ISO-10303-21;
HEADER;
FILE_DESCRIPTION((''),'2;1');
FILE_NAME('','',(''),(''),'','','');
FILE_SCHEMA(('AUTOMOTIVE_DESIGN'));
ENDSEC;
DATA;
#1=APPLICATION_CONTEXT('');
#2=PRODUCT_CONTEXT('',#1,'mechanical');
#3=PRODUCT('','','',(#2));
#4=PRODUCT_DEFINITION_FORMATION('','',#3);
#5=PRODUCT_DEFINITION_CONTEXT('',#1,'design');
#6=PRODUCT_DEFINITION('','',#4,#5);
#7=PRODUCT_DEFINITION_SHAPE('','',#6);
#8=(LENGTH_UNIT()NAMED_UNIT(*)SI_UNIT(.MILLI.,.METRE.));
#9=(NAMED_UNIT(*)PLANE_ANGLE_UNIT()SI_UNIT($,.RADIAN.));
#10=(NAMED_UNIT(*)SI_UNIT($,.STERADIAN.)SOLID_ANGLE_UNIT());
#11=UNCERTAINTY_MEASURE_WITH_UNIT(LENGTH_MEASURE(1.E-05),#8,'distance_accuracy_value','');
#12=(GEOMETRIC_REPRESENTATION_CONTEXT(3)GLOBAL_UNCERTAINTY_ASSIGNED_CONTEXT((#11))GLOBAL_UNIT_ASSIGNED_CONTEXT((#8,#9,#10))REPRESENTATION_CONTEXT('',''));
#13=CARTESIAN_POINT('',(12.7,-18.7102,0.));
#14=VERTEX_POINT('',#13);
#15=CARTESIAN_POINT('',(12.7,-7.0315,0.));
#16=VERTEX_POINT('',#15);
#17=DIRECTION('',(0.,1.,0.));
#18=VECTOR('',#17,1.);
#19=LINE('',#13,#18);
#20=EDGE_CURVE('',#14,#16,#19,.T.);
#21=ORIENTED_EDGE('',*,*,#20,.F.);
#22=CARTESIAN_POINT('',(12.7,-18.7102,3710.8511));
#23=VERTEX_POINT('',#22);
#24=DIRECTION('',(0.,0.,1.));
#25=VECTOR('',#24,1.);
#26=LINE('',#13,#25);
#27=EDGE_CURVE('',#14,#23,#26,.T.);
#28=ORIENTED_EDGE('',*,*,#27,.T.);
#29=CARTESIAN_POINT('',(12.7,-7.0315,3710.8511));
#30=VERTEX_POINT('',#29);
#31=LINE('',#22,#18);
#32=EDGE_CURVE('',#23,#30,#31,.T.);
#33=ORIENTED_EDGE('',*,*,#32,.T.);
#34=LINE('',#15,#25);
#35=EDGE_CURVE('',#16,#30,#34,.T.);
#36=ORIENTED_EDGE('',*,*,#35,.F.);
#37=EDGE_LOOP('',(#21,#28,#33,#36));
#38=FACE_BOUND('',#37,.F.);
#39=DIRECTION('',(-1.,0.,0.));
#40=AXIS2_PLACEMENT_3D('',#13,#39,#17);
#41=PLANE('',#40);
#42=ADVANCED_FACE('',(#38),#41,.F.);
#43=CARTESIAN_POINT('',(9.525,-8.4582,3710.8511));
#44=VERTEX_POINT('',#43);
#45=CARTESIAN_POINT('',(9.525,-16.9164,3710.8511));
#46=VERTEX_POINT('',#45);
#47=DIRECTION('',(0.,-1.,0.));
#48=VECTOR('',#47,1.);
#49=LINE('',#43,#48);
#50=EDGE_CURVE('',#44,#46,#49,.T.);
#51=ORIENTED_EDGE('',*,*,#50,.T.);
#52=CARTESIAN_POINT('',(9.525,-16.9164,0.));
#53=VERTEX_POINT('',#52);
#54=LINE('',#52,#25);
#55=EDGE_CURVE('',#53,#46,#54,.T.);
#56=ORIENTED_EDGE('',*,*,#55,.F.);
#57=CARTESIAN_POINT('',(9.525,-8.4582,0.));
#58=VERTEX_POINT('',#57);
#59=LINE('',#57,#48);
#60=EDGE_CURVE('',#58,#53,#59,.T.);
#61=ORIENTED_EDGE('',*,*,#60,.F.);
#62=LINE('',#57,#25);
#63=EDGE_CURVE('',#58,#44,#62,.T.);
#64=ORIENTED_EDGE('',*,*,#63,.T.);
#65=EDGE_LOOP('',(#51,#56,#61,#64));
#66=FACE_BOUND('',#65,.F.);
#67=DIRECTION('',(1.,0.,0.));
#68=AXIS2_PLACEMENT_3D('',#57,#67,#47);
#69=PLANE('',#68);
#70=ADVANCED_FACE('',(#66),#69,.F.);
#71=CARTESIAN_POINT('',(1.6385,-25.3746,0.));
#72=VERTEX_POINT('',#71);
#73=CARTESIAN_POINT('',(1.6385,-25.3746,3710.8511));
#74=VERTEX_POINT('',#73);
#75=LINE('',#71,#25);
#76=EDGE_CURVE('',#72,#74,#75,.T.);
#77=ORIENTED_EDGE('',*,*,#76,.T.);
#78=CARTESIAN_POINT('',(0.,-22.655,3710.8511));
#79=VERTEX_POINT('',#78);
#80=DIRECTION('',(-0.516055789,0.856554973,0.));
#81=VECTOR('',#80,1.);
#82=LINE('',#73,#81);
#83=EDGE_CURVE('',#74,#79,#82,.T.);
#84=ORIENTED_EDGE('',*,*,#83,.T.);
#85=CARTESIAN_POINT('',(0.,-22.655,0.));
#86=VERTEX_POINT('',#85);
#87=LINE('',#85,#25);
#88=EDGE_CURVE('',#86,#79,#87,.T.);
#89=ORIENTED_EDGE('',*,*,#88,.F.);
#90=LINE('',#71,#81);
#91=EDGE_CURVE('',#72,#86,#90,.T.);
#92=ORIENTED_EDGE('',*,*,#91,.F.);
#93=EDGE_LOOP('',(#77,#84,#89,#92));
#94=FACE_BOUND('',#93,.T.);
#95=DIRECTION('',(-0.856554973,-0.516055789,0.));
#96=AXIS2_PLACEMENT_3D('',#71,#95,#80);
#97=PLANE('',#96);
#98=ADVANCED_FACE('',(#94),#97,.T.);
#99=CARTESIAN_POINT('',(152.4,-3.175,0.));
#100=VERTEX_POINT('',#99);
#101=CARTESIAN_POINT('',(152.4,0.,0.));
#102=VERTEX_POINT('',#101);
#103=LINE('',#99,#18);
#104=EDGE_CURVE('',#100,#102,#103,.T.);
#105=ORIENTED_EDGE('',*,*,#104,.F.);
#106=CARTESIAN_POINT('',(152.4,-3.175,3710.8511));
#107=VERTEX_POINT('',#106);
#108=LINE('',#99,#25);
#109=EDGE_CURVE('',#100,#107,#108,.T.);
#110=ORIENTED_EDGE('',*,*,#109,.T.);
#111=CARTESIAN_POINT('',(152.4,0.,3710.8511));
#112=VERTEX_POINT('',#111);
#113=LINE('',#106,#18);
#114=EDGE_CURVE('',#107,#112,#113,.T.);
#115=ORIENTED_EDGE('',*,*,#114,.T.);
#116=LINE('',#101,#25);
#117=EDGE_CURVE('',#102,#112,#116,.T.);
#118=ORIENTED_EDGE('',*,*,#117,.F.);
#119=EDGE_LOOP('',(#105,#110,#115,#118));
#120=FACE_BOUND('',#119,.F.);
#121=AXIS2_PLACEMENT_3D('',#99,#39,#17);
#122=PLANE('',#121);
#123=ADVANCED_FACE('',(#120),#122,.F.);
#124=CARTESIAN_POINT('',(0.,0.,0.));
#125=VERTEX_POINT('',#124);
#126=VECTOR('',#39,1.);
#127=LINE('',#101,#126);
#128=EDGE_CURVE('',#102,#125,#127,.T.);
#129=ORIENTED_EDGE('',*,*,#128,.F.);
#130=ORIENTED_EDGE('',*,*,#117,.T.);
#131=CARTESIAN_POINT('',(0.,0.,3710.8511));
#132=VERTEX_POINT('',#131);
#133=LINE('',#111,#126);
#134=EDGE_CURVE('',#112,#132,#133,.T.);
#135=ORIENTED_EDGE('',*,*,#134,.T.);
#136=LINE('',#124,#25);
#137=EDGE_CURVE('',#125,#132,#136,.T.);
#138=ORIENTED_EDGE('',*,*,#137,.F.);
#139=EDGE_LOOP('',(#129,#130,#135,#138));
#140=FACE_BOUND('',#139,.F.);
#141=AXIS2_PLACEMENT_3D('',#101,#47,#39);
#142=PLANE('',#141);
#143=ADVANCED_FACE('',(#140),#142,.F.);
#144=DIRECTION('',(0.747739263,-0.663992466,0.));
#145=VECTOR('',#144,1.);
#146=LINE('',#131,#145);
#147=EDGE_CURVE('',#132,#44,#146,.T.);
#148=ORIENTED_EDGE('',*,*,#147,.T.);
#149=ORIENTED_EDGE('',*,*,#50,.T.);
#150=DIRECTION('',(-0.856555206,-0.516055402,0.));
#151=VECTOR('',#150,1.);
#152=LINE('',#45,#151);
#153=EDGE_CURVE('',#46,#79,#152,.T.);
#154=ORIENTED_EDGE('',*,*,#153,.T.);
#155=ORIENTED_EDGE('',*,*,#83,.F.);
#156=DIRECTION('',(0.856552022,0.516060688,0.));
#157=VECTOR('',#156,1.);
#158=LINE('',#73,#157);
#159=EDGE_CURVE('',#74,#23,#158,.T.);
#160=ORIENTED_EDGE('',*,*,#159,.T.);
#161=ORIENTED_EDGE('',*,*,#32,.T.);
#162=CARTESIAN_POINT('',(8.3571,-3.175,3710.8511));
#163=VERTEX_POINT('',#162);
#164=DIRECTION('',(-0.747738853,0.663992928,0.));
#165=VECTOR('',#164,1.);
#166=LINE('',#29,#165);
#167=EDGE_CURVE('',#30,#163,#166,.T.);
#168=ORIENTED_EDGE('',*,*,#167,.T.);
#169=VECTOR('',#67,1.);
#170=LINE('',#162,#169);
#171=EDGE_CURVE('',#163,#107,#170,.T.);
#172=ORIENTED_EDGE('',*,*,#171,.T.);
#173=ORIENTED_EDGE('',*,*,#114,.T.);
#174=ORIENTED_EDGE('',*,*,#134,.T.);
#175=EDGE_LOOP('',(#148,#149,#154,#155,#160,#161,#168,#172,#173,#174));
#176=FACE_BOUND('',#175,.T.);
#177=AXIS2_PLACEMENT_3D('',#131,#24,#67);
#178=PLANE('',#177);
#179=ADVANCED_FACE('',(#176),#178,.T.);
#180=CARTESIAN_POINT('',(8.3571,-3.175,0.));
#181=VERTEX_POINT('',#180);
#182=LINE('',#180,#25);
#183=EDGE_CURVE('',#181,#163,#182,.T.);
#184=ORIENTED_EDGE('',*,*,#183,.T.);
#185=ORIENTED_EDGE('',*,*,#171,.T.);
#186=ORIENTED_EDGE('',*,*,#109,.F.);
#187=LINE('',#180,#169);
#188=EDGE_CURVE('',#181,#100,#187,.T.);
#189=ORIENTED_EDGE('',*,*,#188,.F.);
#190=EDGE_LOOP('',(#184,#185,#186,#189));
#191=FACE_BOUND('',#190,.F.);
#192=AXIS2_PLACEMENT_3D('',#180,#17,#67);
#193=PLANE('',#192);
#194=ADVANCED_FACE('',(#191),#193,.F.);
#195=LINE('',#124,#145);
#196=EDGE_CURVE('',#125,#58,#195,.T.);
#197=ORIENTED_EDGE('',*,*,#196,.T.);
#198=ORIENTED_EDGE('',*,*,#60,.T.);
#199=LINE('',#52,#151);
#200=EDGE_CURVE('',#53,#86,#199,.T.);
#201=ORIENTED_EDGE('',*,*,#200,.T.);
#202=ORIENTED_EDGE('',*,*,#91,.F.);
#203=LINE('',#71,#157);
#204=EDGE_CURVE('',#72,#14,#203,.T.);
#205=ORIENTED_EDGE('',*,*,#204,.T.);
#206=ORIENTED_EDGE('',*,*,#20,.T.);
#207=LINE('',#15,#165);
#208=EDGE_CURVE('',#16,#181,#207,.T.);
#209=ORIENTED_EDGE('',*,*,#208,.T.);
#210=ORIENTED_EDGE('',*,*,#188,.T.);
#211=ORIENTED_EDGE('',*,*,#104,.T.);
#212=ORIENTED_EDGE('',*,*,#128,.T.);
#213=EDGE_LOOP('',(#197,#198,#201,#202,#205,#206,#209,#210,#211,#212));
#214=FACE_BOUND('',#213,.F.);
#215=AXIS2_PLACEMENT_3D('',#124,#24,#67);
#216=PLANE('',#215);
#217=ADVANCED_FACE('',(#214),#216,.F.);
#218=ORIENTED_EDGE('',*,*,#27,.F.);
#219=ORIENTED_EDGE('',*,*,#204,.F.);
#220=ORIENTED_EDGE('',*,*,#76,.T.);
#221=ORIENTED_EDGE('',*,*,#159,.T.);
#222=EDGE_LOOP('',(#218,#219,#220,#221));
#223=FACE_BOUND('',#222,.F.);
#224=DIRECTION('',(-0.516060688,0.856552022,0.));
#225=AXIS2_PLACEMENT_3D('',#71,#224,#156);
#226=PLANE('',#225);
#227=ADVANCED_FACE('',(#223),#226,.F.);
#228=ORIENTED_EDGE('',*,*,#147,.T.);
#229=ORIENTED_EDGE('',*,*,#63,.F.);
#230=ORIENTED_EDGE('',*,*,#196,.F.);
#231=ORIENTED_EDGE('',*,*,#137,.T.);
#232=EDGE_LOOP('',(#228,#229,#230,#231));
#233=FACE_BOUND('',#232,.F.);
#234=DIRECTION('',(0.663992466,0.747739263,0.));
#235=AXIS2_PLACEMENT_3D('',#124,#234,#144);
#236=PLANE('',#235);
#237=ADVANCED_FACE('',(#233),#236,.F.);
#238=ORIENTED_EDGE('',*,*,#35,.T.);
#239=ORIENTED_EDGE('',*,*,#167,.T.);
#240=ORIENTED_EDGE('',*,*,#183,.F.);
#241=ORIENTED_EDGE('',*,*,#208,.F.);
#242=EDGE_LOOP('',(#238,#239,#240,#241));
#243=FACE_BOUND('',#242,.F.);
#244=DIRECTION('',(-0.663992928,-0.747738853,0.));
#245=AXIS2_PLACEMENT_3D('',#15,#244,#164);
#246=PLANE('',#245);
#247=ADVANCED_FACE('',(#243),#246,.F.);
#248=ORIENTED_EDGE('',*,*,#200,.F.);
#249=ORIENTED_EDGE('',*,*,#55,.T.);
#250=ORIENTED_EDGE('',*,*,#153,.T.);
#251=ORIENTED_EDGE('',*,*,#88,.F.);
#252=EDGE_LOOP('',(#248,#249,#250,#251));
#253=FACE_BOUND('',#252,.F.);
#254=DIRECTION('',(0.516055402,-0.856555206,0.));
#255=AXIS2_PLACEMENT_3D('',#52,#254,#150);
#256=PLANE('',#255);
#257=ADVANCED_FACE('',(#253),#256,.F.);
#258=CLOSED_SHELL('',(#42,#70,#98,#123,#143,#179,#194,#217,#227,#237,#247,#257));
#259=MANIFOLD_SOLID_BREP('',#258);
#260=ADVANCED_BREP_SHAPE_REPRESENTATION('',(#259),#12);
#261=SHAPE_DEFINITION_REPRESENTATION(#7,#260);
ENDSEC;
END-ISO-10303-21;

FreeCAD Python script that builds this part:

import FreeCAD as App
import Part
import Sketcher
Q = App.Units.Quantity


def add_polygon(sketch, points):
    """Adds a closed chain of lines whose ends are joined by coincident constraints."""
    first, n = sketch.GeometryCount, len(points)
    for a, b in zip(points, points[1:] + points[:1]):
        sketch.addGeometry(Part.LineSegment(App.Vector(*a, 0), App.Vector(*b, 0)), False)
    for i in range(n):
        sketch.addConstraint(Sketcher.Constraint("Coincident", first + i, 2, first + (i + 1) % n, 1))

doc = App.newDocument("Part")
params = doc.addObject("Spreadsheet::Sheet", "Params")
for row, (alias, value) in enumerate([
    ("sketch1_width", "6 in"),
    ("sketch1_height", "0.125 in"),
    ("sketch1_height2", "0.333 in"),
    ("sketch1_length", "0.125 in"),
    ("pad1_length", "146.0965 in"),
], start=1):
    params.set(f"A{row}", alias)
    params.set(f"B{row}", "=" + value)
    params.setAlias(f"B{row}", alias)

body = doc.addObject("PartDesign::Body", "Body")

# Sketch on XY plane
sketch1 = body.newObject("Sketcher::SketchObject", "Sketch")
sketch1.AttachmentSupport = (doc.getObject("XY_Plane"), [""])
sketch1.MapMode = "FlatFace"
add_polygon(sketch1, [(8.4, -3.2), (152.4, -3.2), (152.4, 0), (0, 0), (9.5, -8.5), (9.5, -16.9), (0, -22.7), (1.6, -25.4), (12.7, -18.7), (12.7, -7)])  # lines 0-9
sketch1.addConstraint([
    Sketcher.Constraint("Horizontal", 0),
    Sketcher.Constraint("Vertical", 1),
    Sketcher.Constraint("Horizontal", 2),
    Sketcher.Constraint("Vertical", 4),
    Sketcher.Constraint("Vertical", 8),
    Sketcher.Constraint("Coincident", 2, 2, -1, 1),
    Sketcher.Constraint("PointOnObject", 5, 2, -2),
    Sketcher.Constraint("Perpendicular", 5, 6),
    Sketcher.Constraint("Perpendicular", 6, 7),
    Sketcher.Constraint("Parallel", 3, 9),
    Sketcher.Constraint("DistanceX", 2, 2, 2, 1, Q("6 in")),
    Sketcher.Constraint("DistanceX", -1, 1, 7, 2, Q("0.5 in")),
    Sketcher.Constraint("DistanceY", 1, 1, 1, 2, Q("0.125 in")),
    Sketcher.Constraint("DistanceY", 4, 2, 4, 1, Q("0.333 in")),
    Sketcher.Constraint("Distance", 6, Q("0.125 in")),
    Sketcher.Constraint("DistanceY", 3, 2, -1, 1, Q("0.333 in")),
    Sketcher.Constraint("DistanceY", 6, 2, 4, 2, Q("0.333 in")),
    Sketcher.Constraint("DistanceX", 4, 2, 7, 2, Q("0.125 in")),
    Sketcher.Constraint("DistanceY", 8, 1, 8, 2, Q("0.4598 in")),
])
sketch1.setExpression("Constraints[20]", "Params.sketch1_width")
sketch1.setExpression("Constraints[22]", "Params.sketch1_height")
sketch1.setExpression("Constraints[23]", "Params.sketch1_height2")
sketch1.setExpression("Constraints[24]", "Params.sketch1_length")
pad1 = body.newObject("PartDesign::Pad", "Pad")
pad1.Profile = sketch1
pad1.setExpression("Length", "Params.pad1_length")

doc.recompute()
